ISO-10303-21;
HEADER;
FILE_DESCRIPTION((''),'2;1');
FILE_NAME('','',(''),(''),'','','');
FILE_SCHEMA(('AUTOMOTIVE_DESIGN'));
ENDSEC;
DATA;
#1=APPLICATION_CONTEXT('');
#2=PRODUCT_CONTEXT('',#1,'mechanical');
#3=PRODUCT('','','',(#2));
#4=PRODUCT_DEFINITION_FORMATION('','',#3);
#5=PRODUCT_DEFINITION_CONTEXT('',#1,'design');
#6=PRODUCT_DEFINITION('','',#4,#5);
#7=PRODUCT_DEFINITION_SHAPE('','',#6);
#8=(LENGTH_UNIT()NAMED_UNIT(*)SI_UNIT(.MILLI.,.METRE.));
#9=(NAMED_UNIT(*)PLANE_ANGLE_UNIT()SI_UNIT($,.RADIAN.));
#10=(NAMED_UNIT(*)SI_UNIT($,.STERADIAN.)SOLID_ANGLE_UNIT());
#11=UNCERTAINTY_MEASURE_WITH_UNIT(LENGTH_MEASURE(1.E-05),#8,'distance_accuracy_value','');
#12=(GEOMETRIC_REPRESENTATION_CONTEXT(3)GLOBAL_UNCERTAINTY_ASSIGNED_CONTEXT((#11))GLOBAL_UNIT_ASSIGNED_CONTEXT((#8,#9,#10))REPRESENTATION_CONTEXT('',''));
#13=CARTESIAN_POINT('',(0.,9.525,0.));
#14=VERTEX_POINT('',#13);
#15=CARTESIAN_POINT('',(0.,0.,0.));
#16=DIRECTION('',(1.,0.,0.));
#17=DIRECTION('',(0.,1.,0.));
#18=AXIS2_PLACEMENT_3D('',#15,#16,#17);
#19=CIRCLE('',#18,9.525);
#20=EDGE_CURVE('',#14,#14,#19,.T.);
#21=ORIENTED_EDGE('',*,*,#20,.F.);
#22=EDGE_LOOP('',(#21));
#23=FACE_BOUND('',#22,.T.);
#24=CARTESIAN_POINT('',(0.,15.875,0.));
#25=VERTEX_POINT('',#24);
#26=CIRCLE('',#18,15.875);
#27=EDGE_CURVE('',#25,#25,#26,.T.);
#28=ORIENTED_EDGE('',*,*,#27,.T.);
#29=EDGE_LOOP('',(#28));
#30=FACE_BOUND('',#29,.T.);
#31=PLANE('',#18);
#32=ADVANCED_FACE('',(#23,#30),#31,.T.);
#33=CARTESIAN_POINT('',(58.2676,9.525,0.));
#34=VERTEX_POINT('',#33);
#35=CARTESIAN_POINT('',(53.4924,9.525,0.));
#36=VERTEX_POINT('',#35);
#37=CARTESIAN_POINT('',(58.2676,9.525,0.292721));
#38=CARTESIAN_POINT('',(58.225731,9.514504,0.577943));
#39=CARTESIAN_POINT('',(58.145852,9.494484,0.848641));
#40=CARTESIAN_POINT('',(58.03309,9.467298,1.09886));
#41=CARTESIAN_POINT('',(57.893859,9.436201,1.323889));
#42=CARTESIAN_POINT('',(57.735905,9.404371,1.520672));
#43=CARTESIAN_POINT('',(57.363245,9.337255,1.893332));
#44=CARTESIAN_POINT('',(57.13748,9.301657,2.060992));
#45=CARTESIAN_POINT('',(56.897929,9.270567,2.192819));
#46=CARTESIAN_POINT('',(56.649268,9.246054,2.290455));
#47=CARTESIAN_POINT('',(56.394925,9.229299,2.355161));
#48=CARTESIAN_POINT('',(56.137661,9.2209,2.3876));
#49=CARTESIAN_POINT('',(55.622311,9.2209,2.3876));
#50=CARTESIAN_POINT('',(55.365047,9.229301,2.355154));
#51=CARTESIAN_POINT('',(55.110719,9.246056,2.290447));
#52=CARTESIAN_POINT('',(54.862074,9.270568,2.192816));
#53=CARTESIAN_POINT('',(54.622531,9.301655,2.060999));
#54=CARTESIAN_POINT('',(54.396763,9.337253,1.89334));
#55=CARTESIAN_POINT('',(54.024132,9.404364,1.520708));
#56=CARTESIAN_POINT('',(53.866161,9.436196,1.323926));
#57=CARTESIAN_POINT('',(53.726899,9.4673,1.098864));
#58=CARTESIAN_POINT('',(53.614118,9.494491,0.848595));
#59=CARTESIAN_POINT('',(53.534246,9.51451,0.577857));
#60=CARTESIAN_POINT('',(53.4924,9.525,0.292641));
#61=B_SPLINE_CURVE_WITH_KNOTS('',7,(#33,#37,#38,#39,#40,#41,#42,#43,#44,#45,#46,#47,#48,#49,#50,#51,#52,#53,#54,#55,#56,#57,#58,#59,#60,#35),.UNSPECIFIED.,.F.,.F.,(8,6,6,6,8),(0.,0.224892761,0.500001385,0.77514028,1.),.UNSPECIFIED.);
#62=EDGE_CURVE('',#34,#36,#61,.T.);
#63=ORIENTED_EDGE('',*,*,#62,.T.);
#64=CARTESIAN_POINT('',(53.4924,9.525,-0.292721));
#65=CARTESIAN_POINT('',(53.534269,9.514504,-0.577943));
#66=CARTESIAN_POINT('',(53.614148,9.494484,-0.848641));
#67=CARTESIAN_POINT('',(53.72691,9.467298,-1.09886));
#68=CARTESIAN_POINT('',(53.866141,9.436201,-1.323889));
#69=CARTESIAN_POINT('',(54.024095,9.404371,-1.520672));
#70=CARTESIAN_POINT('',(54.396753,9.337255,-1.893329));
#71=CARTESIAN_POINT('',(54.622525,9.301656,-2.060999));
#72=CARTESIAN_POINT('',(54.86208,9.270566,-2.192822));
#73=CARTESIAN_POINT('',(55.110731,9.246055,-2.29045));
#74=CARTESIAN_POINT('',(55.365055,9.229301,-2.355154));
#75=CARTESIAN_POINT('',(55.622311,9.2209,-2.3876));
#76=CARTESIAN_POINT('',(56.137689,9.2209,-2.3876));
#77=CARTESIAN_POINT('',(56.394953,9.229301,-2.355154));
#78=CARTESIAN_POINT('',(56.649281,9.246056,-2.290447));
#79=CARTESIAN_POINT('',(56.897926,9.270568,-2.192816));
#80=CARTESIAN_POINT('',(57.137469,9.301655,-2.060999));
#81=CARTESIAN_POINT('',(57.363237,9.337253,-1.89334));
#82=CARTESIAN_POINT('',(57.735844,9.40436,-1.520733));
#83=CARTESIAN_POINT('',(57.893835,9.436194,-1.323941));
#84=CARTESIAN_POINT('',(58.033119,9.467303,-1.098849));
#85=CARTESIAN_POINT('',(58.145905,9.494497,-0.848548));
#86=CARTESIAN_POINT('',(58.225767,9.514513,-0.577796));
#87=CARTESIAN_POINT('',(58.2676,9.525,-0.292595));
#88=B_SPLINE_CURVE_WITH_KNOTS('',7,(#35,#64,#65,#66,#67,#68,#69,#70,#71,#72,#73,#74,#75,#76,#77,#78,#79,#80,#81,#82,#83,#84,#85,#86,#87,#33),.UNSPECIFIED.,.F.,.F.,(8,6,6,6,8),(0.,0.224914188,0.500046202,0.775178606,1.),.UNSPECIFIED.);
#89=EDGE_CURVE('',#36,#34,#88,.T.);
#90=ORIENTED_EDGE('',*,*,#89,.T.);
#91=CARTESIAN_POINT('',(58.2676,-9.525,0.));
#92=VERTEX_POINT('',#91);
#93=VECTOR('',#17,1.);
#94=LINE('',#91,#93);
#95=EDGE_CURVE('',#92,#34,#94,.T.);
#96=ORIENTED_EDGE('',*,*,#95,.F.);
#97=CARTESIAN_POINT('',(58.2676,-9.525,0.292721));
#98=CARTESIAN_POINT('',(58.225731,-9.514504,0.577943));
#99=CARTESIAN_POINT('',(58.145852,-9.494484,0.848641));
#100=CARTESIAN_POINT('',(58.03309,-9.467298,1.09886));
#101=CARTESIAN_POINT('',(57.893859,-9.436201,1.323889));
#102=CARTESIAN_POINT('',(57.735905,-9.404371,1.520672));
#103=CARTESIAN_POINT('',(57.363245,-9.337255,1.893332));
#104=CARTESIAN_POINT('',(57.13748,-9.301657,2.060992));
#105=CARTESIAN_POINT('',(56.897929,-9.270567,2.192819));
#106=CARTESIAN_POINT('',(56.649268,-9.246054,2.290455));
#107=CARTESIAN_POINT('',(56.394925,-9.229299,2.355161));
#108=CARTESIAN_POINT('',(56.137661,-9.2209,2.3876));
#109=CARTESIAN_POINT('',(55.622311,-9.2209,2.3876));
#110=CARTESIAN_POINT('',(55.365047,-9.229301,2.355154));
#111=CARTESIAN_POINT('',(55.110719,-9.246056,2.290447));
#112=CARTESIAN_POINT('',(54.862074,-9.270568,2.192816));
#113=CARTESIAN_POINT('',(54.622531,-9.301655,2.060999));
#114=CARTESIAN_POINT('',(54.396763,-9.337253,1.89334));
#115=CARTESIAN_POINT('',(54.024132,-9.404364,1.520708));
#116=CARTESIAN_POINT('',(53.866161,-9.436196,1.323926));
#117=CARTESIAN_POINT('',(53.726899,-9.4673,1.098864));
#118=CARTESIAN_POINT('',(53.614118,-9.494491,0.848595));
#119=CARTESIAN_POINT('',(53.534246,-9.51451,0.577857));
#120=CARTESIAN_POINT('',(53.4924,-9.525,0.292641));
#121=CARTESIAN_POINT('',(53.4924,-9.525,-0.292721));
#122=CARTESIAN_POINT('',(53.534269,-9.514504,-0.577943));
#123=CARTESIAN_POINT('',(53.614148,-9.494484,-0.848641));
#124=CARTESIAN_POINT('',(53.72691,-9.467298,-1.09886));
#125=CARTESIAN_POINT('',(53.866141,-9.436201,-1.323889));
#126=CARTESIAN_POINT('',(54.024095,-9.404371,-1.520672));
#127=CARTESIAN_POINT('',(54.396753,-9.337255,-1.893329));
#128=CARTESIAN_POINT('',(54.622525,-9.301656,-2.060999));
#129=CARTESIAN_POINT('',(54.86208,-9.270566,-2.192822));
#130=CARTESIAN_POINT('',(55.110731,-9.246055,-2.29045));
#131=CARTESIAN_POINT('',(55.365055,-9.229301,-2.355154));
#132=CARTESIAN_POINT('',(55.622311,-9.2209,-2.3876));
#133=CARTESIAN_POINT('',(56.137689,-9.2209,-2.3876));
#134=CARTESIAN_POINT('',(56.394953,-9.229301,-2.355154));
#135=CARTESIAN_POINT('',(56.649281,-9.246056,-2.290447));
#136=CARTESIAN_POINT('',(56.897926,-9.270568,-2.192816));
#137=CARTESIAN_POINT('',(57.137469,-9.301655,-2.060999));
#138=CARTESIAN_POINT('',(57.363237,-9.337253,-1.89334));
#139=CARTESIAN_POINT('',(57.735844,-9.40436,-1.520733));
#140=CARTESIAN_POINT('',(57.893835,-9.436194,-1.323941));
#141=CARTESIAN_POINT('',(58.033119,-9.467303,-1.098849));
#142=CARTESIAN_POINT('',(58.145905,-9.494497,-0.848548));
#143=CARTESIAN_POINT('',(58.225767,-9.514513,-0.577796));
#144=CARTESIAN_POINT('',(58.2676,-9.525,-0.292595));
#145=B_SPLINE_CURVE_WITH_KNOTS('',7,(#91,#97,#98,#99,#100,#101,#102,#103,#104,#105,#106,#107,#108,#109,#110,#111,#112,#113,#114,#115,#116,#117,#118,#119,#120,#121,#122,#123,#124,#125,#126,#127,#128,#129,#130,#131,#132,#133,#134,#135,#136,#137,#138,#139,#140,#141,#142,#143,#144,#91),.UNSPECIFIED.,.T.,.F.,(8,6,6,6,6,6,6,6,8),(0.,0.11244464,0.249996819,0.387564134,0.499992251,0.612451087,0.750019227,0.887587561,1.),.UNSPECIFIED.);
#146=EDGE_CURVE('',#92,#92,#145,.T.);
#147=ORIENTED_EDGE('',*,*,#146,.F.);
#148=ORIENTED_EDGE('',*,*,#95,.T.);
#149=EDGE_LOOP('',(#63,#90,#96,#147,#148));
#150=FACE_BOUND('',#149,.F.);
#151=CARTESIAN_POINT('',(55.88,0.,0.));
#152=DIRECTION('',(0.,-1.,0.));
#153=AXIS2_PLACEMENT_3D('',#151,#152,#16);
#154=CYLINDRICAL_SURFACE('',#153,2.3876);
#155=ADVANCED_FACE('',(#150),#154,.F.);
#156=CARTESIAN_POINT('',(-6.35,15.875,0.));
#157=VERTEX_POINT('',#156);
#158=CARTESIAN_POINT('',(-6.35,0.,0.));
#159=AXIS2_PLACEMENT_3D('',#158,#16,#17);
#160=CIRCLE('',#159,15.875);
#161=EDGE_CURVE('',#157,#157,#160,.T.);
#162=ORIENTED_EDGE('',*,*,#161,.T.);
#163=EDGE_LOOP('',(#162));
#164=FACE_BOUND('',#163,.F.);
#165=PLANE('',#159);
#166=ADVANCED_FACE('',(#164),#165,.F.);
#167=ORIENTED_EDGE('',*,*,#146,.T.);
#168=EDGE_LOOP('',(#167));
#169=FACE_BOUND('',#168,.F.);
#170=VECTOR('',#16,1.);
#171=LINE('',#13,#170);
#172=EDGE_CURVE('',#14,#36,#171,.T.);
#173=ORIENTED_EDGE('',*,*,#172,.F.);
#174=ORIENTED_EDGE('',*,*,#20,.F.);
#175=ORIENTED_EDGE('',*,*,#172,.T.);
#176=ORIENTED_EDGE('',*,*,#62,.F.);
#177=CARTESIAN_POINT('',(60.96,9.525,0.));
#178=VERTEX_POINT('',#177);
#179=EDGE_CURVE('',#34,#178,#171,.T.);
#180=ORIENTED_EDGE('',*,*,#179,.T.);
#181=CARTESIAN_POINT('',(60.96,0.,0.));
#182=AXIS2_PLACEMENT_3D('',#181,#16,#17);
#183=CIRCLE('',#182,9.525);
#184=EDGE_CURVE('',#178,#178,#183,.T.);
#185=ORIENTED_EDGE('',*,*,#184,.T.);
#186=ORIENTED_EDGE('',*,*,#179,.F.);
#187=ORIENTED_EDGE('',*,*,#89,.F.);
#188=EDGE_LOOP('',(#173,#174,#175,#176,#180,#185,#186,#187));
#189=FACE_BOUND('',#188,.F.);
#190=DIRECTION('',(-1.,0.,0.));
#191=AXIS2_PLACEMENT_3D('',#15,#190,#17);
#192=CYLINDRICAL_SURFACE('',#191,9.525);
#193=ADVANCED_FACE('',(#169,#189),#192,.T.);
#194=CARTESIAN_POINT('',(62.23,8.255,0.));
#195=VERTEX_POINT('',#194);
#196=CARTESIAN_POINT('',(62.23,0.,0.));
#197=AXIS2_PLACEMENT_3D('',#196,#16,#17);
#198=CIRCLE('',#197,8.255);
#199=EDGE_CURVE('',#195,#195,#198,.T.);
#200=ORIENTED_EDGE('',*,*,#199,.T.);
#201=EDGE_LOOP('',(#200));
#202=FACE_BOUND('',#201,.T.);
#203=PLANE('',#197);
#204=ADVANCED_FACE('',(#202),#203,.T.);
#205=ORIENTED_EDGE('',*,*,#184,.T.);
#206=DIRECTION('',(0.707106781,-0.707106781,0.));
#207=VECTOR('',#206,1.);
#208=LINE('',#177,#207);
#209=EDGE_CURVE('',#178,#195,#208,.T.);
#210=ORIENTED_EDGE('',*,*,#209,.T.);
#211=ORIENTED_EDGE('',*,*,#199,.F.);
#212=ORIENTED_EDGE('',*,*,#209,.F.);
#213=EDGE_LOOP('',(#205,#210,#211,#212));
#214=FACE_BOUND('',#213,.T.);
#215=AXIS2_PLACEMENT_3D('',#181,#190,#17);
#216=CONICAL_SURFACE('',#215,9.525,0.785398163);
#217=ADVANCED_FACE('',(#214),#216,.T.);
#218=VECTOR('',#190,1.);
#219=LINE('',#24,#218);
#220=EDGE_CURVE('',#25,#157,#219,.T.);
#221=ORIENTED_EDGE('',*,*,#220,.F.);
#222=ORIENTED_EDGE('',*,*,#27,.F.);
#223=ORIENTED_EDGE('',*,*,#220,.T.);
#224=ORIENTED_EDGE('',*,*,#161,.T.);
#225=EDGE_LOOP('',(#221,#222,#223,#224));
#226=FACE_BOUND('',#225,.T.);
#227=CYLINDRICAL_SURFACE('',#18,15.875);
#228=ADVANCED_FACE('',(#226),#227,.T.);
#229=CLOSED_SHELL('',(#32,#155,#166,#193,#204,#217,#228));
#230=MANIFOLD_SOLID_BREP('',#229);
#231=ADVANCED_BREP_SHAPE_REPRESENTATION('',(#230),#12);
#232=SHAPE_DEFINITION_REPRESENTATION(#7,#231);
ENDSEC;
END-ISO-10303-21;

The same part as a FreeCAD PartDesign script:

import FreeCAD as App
import Part
import Sketcher

V = App.Vector
Q = App.Units.Quantity


def edges_at(feature, points):
    """Names of the edges that pass closest to the given points."""
    edges = feature.Shape.Edges
    near = lambda p: min(range(len(edges)), key=lambda i: edges[i].distToShape(Part.Vertex(*p))[0])
    return sorted({f"Edge{near(p) + 1}" for p in points})

doc = App.newDocument("Part")
body = doc.addObject("PartDesign::Body", "Body")

sketch1 = body.newObject("Sketcher::SketchObject", "Sketch")
sketch1.AttachmentSupport = (doc.getObject("YZ_Plane"), [""])
sketch1.MapMode = "FlatFace"
sketch1.addGeometry(Part.Circle(V(0, 0, 0), V(0, 0, 1), 15.875), False)
sketch1.addConstraint(Sketcher.Constraint("Coincident", 0, 3, -1, 1))
sketch1.addConstraint(Sketcher.Constraint("Diameter", 0, Q("1.25 in")))
pad1 = body.newObject("PartDesign::Pad", "Pad")
pad1.Profile = sketch1
pad1.Length = Q("0.25 in")
pad1.Reversed = True

sketch2 = body.newObject("Sketcher::SketchObject", "Sketch001")
sketch2.AttachmentSupport = (doc.getObject("YZ_Plane"), [""])
sketch2.MapMode = "FlatFace"
sketch2.addGeometry(Part.Circle(V(0, 0, 0), V(0, 0, 1), 9.525), False)
sketch2.addConstraint(Sketcher.Constraint("Coincident", 0, 3, -1, 1))
sketch2.addConstraint(Sketcher.Constraint("Diameter", 0, Q("0.75 in")))
pad2 = body.newObject("PartDesign::Pad", "Pad001")
pad2.Profile = sketch2
pad2.Length = Q("2.45 in")

sketch3 = body.newObject("Sketcher::SketchObject", "Sketch002")
sketch3.AttachmentSupport = (doc.getObject("XZ_Plane"), [""])
sketch3.MapMode = "FlatFace"
sketch3.addGeometry(Part.Circle(V(55.88, 0, 0), V(0, 0, 1), 2.3876), False)
sketch3.addConstraint(Sketcher.Constraint("PointOnObject", 0, 3, -1))
sketch3.addConstraint(Sketcher.Constraint("Diameter", 0, Q("0.188 in")))
sketch3.addConstraint(Sketcher.Constraint("DistanceX", -1, 1, 0, 3, Q("2.2 in")))
pocket1 = body.newObject("PartDesign::Pocket", "Pocket")
pocket1.Profile = sketch3
pocket1.Type = "ThroughAll"
pocket1.Midplane = True
doc.recompute()

chamfer = body.newObject("PartDesign::Chamfer", "Chamfer")
chamfer.Base = (pocket1, edges_at(pocket1, [(62.23, -9.525, 0)]))
chamfer.ChamferType = "Two distances"
chamfer.Size = Q("0.05 in")
chamfer.Size2 = Q("0.05 in")

doc.recompute()
